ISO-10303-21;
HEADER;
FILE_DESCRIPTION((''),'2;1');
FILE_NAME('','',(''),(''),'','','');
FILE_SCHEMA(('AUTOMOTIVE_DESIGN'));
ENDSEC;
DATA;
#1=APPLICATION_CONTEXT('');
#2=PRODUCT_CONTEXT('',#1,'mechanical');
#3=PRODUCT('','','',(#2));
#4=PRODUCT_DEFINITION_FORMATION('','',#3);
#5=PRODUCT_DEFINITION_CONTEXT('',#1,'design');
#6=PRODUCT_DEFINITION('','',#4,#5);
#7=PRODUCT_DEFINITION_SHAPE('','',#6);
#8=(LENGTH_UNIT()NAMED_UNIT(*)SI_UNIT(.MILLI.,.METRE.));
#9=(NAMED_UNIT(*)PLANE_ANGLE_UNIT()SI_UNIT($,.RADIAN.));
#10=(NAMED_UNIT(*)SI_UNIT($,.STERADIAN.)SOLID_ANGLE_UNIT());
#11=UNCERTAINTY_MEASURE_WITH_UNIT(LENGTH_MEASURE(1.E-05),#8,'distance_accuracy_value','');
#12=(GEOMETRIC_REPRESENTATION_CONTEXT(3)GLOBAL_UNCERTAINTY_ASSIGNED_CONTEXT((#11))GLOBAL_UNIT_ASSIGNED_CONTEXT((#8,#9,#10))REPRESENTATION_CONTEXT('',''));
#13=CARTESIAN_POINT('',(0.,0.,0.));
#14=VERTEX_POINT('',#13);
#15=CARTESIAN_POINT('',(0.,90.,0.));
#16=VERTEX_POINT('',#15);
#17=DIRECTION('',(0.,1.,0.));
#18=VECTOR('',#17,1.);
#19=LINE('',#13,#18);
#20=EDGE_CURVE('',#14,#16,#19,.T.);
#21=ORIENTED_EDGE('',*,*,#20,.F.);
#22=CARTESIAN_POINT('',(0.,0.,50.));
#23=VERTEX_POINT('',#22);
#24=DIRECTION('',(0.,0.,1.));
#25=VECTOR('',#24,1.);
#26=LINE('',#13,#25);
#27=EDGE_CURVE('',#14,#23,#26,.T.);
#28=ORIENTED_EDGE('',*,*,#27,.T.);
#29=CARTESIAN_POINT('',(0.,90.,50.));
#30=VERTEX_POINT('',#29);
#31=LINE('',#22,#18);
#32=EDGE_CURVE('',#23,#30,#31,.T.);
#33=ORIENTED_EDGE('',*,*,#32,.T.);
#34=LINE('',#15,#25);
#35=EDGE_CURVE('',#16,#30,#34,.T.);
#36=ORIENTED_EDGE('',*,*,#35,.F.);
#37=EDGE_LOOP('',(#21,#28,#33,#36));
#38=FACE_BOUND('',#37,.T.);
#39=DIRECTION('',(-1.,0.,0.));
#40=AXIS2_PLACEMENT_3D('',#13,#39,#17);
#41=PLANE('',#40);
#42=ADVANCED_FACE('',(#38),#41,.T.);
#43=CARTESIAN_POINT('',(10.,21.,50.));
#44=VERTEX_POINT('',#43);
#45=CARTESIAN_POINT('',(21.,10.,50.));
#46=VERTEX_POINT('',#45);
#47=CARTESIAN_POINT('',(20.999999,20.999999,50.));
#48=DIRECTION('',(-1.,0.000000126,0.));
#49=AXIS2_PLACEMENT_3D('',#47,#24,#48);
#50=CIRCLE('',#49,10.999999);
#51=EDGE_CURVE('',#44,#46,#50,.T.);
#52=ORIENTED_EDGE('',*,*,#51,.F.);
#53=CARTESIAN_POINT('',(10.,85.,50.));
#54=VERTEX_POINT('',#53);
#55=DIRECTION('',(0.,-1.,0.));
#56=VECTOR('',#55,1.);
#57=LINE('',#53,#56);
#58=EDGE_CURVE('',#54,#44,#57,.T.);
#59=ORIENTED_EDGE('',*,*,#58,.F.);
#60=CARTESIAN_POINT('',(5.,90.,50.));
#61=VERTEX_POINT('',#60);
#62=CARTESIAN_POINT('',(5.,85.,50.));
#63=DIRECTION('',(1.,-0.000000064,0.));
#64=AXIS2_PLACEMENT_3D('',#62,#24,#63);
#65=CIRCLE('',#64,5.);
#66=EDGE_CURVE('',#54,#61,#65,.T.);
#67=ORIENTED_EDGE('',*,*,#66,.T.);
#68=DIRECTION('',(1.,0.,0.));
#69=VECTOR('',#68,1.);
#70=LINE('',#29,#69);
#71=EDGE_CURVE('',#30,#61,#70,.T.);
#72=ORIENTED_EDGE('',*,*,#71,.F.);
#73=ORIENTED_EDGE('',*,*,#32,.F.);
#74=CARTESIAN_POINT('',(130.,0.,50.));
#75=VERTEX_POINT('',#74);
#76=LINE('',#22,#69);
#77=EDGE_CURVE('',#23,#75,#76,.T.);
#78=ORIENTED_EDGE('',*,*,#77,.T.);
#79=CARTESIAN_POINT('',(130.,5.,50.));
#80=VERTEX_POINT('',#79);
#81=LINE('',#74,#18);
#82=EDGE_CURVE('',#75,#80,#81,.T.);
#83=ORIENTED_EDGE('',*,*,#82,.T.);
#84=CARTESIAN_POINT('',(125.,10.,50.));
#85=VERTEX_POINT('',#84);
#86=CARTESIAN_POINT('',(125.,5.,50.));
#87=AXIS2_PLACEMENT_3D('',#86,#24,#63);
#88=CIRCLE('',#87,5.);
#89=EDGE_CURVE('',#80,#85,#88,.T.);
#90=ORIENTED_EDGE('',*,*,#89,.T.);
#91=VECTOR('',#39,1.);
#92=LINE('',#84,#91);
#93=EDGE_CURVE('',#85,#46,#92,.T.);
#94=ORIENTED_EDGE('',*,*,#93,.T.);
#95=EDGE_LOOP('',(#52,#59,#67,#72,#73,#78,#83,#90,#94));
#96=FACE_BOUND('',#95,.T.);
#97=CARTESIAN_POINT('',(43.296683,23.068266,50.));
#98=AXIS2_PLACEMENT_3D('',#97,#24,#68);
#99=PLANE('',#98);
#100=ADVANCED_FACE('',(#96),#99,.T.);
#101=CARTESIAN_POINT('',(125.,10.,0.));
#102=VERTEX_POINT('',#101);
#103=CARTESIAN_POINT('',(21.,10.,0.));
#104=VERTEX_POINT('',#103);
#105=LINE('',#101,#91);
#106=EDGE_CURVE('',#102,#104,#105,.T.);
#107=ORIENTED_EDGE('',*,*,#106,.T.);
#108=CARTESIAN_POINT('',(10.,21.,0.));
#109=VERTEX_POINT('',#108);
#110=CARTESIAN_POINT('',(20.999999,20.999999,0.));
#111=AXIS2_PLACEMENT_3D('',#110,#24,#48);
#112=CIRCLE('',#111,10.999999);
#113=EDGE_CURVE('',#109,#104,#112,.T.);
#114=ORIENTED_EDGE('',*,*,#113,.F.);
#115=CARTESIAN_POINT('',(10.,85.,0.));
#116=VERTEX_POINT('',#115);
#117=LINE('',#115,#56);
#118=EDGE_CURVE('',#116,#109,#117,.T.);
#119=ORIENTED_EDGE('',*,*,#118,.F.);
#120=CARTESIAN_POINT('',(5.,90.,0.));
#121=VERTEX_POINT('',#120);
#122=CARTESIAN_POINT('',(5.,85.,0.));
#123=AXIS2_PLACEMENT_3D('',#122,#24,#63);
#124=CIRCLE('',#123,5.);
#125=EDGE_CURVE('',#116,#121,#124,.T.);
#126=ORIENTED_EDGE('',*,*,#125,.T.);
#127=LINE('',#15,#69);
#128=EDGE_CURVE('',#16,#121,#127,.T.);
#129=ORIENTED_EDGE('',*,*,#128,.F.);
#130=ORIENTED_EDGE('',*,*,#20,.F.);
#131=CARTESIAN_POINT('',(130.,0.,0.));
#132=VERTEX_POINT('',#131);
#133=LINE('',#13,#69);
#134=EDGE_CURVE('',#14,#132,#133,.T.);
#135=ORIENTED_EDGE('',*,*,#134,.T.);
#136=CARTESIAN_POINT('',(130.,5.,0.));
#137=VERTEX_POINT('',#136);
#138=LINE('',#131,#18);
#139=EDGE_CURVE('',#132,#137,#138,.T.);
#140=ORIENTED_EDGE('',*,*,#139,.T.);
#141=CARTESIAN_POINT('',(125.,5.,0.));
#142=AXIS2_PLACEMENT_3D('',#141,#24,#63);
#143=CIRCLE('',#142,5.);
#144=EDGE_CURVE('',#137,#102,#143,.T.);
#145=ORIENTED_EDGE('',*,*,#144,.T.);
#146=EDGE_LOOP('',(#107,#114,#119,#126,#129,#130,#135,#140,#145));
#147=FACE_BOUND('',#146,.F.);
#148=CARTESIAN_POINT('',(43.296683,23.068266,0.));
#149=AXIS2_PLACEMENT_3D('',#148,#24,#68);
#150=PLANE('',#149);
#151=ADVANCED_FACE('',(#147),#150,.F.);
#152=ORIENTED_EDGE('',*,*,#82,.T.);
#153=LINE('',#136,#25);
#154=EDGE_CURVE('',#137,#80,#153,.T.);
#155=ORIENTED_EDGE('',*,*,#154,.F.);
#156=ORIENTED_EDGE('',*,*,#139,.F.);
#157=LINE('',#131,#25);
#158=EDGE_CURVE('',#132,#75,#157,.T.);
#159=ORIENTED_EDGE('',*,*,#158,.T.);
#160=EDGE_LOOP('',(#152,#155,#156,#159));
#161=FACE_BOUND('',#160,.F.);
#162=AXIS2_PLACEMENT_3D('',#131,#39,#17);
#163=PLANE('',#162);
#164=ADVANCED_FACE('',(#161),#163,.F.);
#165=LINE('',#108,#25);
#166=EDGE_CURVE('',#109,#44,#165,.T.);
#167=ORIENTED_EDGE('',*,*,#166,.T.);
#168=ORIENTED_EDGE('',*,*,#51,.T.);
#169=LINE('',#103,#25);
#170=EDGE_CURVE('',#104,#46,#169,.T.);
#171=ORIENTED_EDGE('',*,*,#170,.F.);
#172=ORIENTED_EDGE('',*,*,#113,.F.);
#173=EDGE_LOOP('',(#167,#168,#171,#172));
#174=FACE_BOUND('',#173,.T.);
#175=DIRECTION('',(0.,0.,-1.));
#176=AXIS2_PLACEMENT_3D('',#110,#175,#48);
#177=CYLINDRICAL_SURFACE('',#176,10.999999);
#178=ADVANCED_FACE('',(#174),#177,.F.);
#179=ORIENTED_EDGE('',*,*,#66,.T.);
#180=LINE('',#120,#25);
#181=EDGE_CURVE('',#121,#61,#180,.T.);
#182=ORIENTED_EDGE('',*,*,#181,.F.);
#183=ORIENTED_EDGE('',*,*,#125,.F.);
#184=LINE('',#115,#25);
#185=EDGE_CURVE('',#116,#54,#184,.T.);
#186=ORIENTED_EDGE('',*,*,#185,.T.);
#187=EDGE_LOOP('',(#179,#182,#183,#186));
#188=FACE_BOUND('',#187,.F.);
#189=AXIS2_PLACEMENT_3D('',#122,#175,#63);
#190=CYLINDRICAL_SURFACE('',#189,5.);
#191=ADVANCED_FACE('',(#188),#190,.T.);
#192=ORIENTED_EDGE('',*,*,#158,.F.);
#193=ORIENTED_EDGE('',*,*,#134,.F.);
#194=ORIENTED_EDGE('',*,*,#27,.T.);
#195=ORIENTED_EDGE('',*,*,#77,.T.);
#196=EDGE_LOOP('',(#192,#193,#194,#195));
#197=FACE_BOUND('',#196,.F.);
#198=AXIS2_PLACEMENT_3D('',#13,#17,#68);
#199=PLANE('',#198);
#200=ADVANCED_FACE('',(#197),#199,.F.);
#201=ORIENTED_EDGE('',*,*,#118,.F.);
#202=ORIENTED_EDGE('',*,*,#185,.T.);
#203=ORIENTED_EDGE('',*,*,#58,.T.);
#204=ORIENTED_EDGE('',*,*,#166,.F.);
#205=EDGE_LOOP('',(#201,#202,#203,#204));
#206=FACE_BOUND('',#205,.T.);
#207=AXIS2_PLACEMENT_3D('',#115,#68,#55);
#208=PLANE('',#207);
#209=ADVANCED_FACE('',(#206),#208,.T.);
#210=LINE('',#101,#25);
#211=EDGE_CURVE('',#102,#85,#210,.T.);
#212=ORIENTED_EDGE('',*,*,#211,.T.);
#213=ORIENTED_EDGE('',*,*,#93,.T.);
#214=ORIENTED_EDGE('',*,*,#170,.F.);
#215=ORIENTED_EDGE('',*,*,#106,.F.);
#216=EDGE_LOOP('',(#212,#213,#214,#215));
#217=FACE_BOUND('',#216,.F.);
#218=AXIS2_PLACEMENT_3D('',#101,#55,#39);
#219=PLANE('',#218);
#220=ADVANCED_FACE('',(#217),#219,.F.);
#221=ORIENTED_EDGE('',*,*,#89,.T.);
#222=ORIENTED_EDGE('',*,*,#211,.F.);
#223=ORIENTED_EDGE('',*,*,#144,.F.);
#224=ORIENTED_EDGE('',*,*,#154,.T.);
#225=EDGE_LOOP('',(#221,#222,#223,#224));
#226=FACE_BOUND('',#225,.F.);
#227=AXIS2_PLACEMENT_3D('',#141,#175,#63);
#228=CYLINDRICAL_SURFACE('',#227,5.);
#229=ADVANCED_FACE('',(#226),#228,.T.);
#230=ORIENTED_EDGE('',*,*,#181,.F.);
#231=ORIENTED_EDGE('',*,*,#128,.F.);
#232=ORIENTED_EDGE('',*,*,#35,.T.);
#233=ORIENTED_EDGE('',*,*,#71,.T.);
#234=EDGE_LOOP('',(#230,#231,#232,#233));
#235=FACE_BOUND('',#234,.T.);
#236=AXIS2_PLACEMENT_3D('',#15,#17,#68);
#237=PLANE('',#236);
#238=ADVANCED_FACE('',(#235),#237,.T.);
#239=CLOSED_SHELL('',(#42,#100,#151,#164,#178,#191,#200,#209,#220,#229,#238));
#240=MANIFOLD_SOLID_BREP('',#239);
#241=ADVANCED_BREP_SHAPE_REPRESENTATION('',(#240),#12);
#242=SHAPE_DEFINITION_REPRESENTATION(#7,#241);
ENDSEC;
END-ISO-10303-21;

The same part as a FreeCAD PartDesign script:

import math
import FreeCAD as App
import Part
import Sketcher

doc = App.newDocument("Part")
params = doc.addObject("Spreadsheet::Sheet", "Params")
for row, (alias, value) in enumerate([
    ("sketch1_radius", "5 mm"),
    ("sketch1_radius2", "10.999999 mm"),
    ("sketch1_width", "130 mm"),
    ("sketch1_width2", "104 mm"),
    ("sketch1_height", "64 mm"),
    ("pad1_length", "50 mm"),
], start=1):
    params.set(f"A{row}", alias)
    params.set(f"B{row}", "=" + value)
    params.setAlias(f"B{row}", alias)

body = doc.addObject("PartDesign::Body", "Body")

sketch1 = body.newObject("Sketcher::SketchObject", "Sketch")
sketch1.AttachmentSupport = (doc.getObject("XY_Plane"), [""])
sketch1.MapMode = "FlatFace"
sketch1.addGeometry([
    Part.LineSegment(App.Vector(0, 0, 0), App.Vector(130, 0, 0)),
    Part.LineSegment(App.Vector(130, 0, 0), App.Vector(130, 5, 0)),
    Part.ArcOfCircle(Part.Circle(App.Vector(125, 5, 0), App.Vector(0, 0, 1), 5), math.radians(0), math.radians(90)),
    Part.LineSegment(App.Vector(125, 10, 0), App.Vector(21, 10, 0)),
    Part.ArcOfCircle(Part.Circle(App.Vector(21, 21, 0), App.Vector(0, 0, 1), 11), math.radians(180), math.radians(270)),
    Part.LineSegment(App.Vector(10, 21, 0), App.Vector(10, 85, 0)),
    Part.ArcOfCircle(Part.Circle(App.Vector(5, 85, 0), App.Vector(0, 0, 1), 5), math.radians(0), math.radians(90)),
    Part.LineSegment(App.Vector(5, 90, 0), App.Vector(0, 90, 0)),
    Part.LineSegment(App.Vector(0, 90, 0), App.Vector(0, 0, 0)),
], False)
sketch1.addConstraint([
    Sketcher.Constraint("Coincident", 0, 2, 1, 1),
    Sketcher.Constraint("Tangent", 1, 2, 2, 1),
    Sketcher.Constraint("Tangent", 2, 2, 3, 1),
    Sketcher.Constraint("Tangent", 3, 2, 4, 2),
    Sketcher.Constraint("Tangent", 4, 1, 5, 1),
    Sketcher.Constraint("Tangent", 5, 2, 6, 1),
    Sketcher.Constraint("Tangent", 6, 2, 7, 1),
    Sketcher.Constraint("Coincident", 7, 2, 8, 1),
    Sketcher.Constraint("Coincident", 8, 2, 0, 1),
    Sketcher.Constraint("Horizontal", 0),
    Sketcher.Constraint("Vertical", 1),
    Sketcher.Constraint("Horizontal", 3),
    Sketcher.Constraint("Vertical", 5),
    Sketcher.Constraint("Horizontal", 7),
    Sketcher.Constraint("Vertical", 8),
    Sketcher.Constraint("Coincident", 8, 2, -1, 1),
    Sketcher.Constraint("Equal", 2, 6),
    Sketcher.Constraint("Equal", 7, 1),
    Sketcher.Constraint("Radius", 2, 5.0),
    Sketcher.Constraint("Radius", 4, 10.999999),
    Sketcher.Constraint("DistanceX", 0, 1, 0, 2, 130.0),
    Sketcher.Constraint("DistanceX", 3, 2, 3, 1, 104.0),
    Sketcher.Constraint("DistanceY", 5, 1, 5, 2, 64.0),
])
sketch1.setExpression("Constraints[18]", "Params.sketch1_radius")
sketch1.setExpression("Constraints[19]", "Params.sketch1_radius2")
sketch1.setExpression("Constraints[20]", "Params.sketch1_width")
sketch1.setExpression("Constraints[21]", "Params.sketch1_width2")
sketch1.setExpression("Constraints[22]", "Params.sketch1_height")
pad1 = body.newObject("PartDesign::Pad", "Pad")
pad1.Profile = sketch1
pad1.setExpression("Length", "Params.pad1_length")

doc.recompute()
